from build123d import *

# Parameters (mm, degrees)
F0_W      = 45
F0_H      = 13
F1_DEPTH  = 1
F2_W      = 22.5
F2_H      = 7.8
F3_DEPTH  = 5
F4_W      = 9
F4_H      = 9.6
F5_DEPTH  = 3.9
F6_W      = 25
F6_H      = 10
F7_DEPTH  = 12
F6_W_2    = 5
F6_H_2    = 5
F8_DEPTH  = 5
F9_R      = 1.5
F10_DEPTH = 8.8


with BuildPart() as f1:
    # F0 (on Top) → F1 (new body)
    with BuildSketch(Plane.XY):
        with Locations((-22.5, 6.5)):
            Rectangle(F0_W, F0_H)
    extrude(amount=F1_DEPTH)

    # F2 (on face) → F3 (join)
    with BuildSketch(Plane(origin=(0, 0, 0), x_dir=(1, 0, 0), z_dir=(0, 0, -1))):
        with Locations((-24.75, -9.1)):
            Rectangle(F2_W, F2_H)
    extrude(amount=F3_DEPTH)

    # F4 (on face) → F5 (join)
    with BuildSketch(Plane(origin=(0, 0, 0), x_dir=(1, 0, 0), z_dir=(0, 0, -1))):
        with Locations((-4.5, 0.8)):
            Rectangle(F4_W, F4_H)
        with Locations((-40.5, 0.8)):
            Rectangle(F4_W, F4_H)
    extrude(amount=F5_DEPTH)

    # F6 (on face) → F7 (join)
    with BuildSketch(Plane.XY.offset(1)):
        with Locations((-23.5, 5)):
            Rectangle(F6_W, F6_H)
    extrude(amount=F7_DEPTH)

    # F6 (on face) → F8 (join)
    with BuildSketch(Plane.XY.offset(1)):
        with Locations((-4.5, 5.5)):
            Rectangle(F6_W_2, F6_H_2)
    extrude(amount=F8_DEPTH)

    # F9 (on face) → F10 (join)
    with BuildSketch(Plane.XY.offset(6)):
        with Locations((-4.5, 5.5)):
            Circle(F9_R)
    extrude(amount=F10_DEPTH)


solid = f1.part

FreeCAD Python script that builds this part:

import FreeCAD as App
import Part
import Sketcher
from FreeCAD import Vector


def add_polygon(sketch, points):
    """Adds a closed chain of lines whose ends are joined by coincident constraints."""
    first, n = sketch.GeometryCount, len(points)
    for a, b in zip(points, points[1:] + points[:1]):
        sketch.addGeometry(Part.LineSegment(App.Vector(*a, 0), App.Vector(*b, 0)), False)
    for i in range(n):
        sketch.addConstraint(Sketcher.Constraint("Coincident", first + i, 2, first + (i + 1) % n, 1))

doc = App.newDocument("Part")
params = doc.addObject("Spreadsheet::Sheet", "Params")
for row, (alias, value) in enumerate([
    ("sketch1_width", "45 mm"),
    ("sketch1_height", "13 mm"),
    ("pad1_length", "1 mm"),
    ("sketch2_width", "22.5 mm"),
    ("sketch2_height", "7.8 mm"),
    ("pad2_length", "5 mm"),
    ("sketch3_width", "9 mm"),
    ("sketch3_height", "9.6 mm"),
    ("pad3_length", "3.9 mm"),
    ("sketch4_width", "25 mm"),
    ("sketch4_height", "10 mm"),
    ("pad4_length", "12 mm"),
    ("sketch5_width", "5 mm"),
    ("pad5_length", "5 mm"),
    ("sketch6_diameter", "3 mm"),
    ("pad6_length", "8.8 mm"),
], start=1):
    params.set(f"A{row}", alias)
    params.set(f"B{row}", "=" + value)
    params.setAlias(f"B{row}", alias)

body = doc.addObject("PartDesign::Body", "Body")

# Sketch on XY plane
sketch1 = body.newObject("Sketcher::SketchObject", "Sketch")
sketch1.AttachmentSupport = (doc.getObject("XY_Plane"), [""])
sketch1.MapMode = "FlatFace"
add_polygon(sketch1, [(-45, 13), (-45, 0), (0, 0), (0, 13)])  # lines 0-3
sketch1.addConstraint(Sketcher.Constraint("Vertical", 0))
sketch1.addConstraint(Sketcher.Constraint("Horizontal", 1))
sketch1.addConstraint(Sketcher.Constraint("Vertical", 2))
sketch1.addConstraint(Sketcher.Constraint("Horizontal", 3))
sketch1.addConstraint(Sketcher.Constraint("Coincident", 1, 2, -1, 1))
sketch1.addConstraint(Sketcher.Constraint("DistanceX", 1, 1, 1, 2, 45.0))
sketch1.addConstraint(Sketcher.Constraint("DistanceY", 0, 2, 0, 1, 13.0))
sketch1.setExpression("Constraints[9]", "Params.sketch1_width")
sketch1.setExpression("Constraints[10]", "Params.sketch1_height")
pad1 = body.newObject("PartDesign::Pad", "Pad")
pad1.Profile = sketch1
pad1.setExpression("Length", "Params.pad1_length")

# Sketch on XY plane
sketch2 = body.newObject("Sketcher::SketchObject", "Sketch001")
sketch2.AttachmentSupport = (doc.getObject("XY_Plane"), [""])
sketch2.MapMode = "FlatFace"
add_polygon(sketch2, [(-36, 5), (-36, 13), (-14, 13), (-14, 5)])  # lines 0-3
sketch2.addConstraint(Sketcher.Constraint("Vertical", 0))
sketch2.addConstraint(Sketcher.Constraint("Horizontal", 1))
sketch2.addConstraint(Sketcher.Constraint("Vertical", 2))
sketch2.addConstraint(Sketcher.Constraint("Horizontal", 3))
sketch2.addConstraint(Sketcher.Constraint("DistanceX", 1, 1, 1, 2, 22.5))
sketch2.addConstraint(Sketcher.Constraint("DistanceY", 0, 1, 0, 2, 7.8))
sketch2.addConstraint(Sketcher.Constraint("DistanceX", 0, 2, -1, 1, 36.0))
sketch2.addConstraint(Sketcher.Constraint("DistanceY", -1, 1, 0, 2, 13.0))
sketch2.setExpression("Constraints[8]", "Params.sketch2_width")
sketch2.setExpression("Constraints[9]", "Params.sketch2_height")
pad2 = body.newObject("PartDesign::Pad", "Pad001")
pad2.Profile = sketch2
pad2.setExpression("Length", "Params.pad2_length")
pad2.Reversed = True

# Sketch on XY plane
sketch3 = body.newObject("Sketcher::SketchObject", "Sketch002")
sketch3.AttachmentSupport = (doc.getObject("XY_Plane"), [""])
sketch3.MapMode = "FlatFace"
add_polygon(sketch3, [(-9, -6), (-9, 4), (0, 4), (0, -6)])  # lines 0-3
add_polygon(sketch3, [(-45, -6), (-45, 4), (-36, 4), (-36, -6)])  # lines 4-7
sketch3.addConstraint(Sketcher.Constraint("Vertical", 0))
sketch3.addConstraint(Sketcher.Constraint("Horizontal", 1))
sketch3.addConstraint(Sketcher.Constraint("Vertical", 2))
sketch3.addConstraint(Sketcher.Constraint("Horizontal", 3))
sketch3.addConstraint(Sketcher.Constraint("Vertical", 4))
sketch3.addConstraint(Sketcher.Constraint("Horizontal", 5))
sketch3.addConstraint(Sketcher.Constraint("Vertical", 6))
sketch3.addConstraint(Sketcher.Constraint("Horizontal", 7))
sketch3.addConstraint(Sketcher.Constraint("PointOnObject", 1, 2, -2))
sketch3.addConstraint(Sketcher.Constraint("Horizontal", 1, 2, 4, 2))
sketch3.addConstraint(Sketcher.Constraint("Horizontal", 3, 2, 6, 2))
sketch3.addConstraint(Sketcher.Constraint("Equal", 3, 5))
sketch3.addConstraint(Sketcher.Constraint("DistanceX", 1, 1, 1, 2, 9.0))
sketch3.addConstraint(Sketcher.Constraint("DistanceY", 0, 1, 0, 2, 9.6))
sketch3.addConstraint(Sketcher.Constraint("DistanceY", -1, 1, 0, 2, 4.0))
sketch3.addConstraint(Sketcher.Constraint("DistanceX", 4, 2, -1, 1, 45.0))
sketch3.setExpression("Constraints[20]", "Params.sketch3_width")
sketch3.setExpression("Constraints[21]", "Params.sketch3_height")
pad3 = body.newObject("PartDesign::Pad", "Pad002")
pad3.Profile = sketch3
pad3.setExpression("Length", "Params.pad3_length")
pad3.Reversed = True

# Sketch on XY plane
sketch4 = body.newObject("Sketcher::SketchObject", "Sketch003")
sketch4.AttachmentSupport = (doc.getObject("XY_Plane"), [""])
sketch4.MapMode = "FlatFace"
sketch4.AttachmentOffset = App.Placement(Vector(0, 0, 1), App.Rotation())
add_polygon(sketch4, [(-36, 10), (-36, 0), (-11, 0), (-11, 10)])  # lines 0-3
sketch4.addConstraint(Sketcher.Constraint("Vertical", 0))
sketch4.addConstraint(Sketcher.Constraint("Horizontal", 1))
sketch4.addConstraint(Sketcher.Constraint("Vertical", 2))
sketch4.addConstraint(Sketcher.Constraint("Horizontal", 3))
sketch4.addConstraint(Sketcher.Constraint("PointOnObject", 0, 2, -1))
sketch4.addConstraint(Sketcher.Constraint("DistanceX", 1, 1, 1, 2, 25.0))
sketch4.addConstraint(Sketcher.Constraint("DistanceY", 0, 2, 0, 1, 10.0))
sketch4.addConstraint(Sketcher.Constraint("DistanceX", 0, 2, -1, 1, 36.0))
sketch4.setExpression("Constraints[9]", "Params.sketch4_width")
sketch4.setExpression("Constraints[10]", "Params.sketch4_height")
pad4 = body.newObject("PartDesign::Pad", "Pad003")
pad4.Profile = sketch4
pad4.setExpression("Length", "Params.pad4_length")

# Sketch on XY plane
sketch5 = body.newObject("Sketcher::SketchObject", "Sketch004")
sketch5.AttachmentSupport = (doc.getObject("XY_Plane"), [""])
sketch5.MapMode = "FlatFace"
sketch5.AttachmentOffset = App.Placement(Vector(0, 0, 1), App.Rotation())
add_polygon(sketch5, [(-7, 8), (-7, 3), (-2, 3), (-2, 8)])  # lines 0-3
sketch5.addConstraint(Sketcher.Constraint("Vertical", 0))
sketch5.addConstraint(Sketcher.Constraint("Horizontal", 1))
sketch5.addConstraint(Sketcher.Constraint("Vertical", 2))
sketch5.addConstraint(Sketcher.Constraint("Horizontal", 3))
sketch5.addConstraint(Sketcher.Constraint("Equal", 3, 0))
sketch5.addConstraint(Sketcher.Constraint("DistanceX", 1, 1, 1, 2, 5.0))
sketch5.addConstraint(Sketcher.Constraint("DistanceX", 0, 2, -1, 1, 7.0))
sketch5.addConstraint(Sketcher.Constraint("DistanceY", -1, 1, 0, 2, 3.0))
sketch5.setExpression("Constraints[9]", "Params.sketch5_width")
pad5 = body.newObject("PartDesign::Pad", "Pad004")
pad5.Profile = sketch5
pad5.setExpression("Length", "Params.pad5_length")

# Sketch on XY plane
sketch6 = body.newObject("Sketcher::SketchObject", "Sketch005")
sketch6.AttachmentSupport = (doc.getObject("XY_Plane"), [""])
sketch6.MapMode = "FlatFace"
sketch6.AttachmentOffset = App.Placement(Vector(0, 0, 6), App.Rotation())
sketch6.addGeometry(Part.Circle(Vector(-4.5, 5.5, 0), Vector(0, 0, 1), 1.5), False)
sketch6.addConstraint(Sketcher.Constraint("Diameter", 0, 3.0))
sketch6.addConstraint(Sketcher.Constraint("DistanceX", 0, 3, -1, 1, 4.5))
sketch6.addConstraint(Sketcher.Constraint("DistanceY", -1, 1, 0, 3, 5.5))
sketch6.setExpression("Constraints[0]", "Params.sketch6_diameter")
pad6 = body.newObject("PartDesign::Pad", "Pad005")
pad6.Profile = sketch6
pad6.setExpression("Length", "Params.pad6_length")

doc.recompute()
